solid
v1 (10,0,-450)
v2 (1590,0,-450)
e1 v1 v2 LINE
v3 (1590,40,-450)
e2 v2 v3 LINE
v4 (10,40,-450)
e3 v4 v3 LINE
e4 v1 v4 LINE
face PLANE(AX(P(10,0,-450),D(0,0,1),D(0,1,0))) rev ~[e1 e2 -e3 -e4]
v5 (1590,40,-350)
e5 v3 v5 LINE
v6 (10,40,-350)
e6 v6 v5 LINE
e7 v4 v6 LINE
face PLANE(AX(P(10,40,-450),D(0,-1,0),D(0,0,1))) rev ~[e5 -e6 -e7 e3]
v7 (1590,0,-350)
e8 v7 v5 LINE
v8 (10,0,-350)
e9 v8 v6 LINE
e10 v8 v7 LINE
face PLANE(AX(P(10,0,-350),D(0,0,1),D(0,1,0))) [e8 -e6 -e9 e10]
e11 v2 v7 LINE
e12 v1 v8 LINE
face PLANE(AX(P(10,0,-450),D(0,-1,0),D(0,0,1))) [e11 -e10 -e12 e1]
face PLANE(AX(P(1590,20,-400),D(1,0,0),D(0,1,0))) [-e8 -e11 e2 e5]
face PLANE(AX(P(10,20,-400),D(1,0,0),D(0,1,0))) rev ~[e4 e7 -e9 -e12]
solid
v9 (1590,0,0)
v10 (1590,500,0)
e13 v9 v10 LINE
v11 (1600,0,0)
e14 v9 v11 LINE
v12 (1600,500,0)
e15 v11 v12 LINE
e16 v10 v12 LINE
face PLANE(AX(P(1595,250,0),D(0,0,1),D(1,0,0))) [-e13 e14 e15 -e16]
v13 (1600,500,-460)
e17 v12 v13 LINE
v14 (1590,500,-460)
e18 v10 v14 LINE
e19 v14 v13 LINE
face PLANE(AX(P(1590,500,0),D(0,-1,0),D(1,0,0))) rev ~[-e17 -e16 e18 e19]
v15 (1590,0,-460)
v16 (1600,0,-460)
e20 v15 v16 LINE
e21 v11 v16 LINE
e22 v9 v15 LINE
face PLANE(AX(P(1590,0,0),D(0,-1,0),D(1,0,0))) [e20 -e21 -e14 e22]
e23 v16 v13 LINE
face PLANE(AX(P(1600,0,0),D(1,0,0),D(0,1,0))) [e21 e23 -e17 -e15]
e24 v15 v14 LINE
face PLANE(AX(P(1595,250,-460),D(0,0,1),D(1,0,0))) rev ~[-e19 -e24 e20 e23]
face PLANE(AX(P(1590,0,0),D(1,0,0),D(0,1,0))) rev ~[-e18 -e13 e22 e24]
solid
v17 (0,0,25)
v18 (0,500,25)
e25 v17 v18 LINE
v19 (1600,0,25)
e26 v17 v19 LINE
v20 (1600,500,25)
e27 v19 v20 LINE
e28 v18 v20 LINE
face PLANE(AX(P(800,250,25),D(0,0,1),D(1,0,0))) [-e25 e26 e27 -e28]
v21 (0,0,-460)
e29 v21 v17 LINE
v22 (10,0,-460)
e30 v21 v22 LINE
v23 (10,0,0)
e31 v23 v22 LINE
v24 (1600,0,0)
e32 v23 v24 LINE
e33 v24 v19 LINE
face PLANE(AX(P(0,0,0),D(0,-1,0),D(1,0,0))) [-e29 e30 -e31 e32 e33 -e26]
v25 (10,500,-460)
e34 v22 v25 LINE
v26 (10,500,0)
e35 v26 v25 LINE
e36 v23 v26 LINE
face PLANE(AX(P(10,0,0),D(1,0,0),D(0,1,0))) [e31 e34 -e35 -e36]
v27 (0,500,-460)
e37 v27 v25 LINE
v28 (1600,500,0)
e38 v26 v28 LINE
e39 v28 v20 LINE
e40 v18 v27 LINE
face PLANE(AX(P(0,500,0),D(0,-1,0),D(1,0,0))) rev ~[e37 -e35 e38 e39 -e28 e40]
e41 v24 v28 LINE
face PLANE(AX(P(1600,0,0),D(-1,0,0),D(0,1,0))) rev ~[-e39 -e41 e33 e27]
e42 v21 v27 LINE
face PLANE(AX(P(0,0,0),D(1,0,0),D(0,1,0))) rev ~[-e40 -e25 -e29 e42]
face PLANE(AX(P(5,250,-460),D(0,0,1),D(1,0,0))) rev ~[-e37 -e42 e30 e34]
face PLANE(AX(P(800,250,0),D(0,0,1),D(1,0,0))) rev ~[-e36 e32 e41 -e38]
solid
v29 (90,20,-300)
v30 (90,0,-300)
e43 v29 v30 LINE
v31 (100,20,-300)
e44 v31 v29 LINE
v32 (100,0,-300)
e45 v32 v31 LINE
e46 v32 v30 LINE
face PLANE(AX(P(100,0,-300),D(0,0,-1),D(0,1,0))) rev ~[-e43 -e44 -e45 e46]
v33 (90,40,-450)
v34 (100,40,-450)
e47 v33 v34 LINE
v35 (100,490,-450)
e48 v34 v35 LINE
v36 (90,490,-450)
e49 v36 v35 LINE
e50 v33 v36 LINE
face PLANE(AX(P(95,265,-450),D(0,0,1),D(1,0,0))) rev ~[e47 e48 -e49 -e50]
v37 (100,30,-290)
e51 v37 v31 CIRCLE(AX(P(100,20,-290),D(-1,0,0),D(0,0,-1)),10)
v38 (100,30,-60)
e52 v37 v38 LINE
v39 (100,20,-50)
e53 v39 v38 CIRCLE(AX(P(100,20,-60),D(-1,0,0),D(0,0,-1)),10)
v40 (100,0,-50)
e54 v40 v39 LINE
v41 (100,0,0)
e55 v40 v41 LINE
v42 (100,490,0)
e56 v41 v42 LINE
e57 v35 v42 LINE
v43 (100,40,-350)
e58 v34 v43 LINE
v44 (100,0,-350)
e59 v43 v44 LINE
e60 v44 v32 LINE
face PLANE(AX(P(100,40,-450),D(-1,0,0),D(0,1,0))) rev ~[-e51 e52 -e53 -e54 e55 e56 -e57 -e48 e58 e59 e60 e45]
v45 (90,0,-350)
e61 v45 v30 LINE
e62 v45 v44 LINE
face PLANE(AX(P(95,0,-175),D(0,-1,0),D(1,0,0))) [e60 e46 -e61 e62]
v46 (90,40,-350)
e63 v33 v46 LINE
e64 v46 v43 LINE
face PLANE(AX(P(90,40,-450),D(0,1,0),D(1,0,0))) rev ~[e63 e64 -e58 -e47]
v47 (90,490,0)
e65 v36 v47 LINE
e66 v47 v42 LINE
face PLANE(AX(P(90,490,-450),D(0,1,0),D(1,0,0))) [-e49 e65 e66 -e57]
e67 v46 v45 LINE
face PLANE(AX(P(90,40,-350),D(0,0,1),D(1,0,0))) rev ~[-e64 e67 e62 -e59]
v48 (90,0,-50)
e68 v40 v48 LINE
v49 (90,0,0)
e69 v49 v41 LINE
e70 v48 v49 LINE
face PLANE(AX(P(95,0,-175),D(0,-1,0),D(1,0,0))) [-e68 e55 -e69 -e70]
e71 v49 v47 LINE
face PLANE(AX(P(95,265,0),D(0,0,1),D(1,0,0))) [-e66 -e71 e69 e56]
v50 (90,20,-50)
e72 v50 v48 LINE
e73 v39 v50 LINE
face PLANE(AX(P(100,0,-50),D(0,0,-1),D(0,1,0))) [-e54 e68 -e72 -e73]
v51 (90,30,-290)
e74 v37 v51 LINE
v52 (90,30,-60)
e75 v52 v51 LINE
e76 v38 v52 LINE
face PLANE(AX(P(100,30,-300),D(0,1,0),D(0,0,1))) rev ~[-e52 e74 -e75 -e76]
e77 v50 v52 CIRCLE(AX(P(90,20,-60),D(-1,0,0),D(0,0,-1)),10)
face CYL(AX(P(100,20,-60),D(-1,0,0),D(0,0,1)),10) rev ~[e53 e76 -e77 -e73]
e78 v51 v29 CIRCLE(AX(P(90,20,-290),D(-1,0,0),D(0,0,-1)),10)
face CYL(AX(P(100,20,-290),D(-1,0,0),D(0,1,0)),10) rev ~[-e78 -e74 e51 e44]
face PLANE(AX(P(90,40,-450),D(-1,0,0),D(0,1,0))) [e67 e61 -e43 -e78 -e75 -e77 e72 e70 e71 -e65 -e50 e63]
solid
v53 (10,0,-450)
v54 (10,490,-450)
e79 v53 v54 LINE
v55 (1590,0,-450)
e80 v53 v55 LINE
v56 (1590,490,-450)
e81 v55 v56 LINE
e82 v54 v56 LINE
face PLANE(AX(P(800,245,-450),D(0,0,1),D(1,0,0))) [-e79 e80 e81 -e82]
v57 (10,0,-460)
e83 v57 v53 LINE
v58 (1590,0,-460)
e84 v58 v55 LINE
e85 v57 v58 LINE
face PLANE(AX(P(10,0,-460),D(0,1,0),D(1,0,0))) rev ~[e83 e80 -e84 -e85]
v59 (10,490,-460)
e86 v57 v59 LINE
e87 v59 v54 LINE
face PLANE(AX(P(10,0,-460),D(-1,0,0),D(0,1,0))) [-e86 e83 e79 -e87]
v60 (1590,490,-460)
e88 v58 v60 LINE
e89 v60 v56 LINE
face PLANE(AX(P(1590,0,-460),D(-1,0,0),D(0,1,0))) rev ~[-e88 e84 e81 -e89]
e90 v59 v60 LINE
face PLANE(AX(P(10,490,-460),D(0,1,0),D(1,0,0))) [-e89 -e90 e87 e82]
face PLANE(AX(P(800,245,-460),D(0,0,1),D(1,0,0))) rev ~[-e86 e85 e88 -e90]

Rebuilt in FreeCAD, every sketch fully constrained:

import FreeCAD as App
import Part
import Sketcher
from FreeCAD import Vector
Q = App.Units.Quantity


def edges_at(feature, points):
    """Names of the edges that pass closest to the given points."""
    edges = feature.Shape.Edges
    near = lambda p: min(range(len(edges)), key=lambda i: edges[i].distToShape(Part.Vertex(*p))[0])
    return sorted({f"Edge{near(p) + 1}" for p in points})


def add_polygon(sketch, points):
    """Adds a closed chain of lines whose ends are joined by coincident constraints."""
    first, n = sketch.GeometryCount, len(points)
    for a, b in zip(points, points[1:] + points[:1]):
        sketch.addGeometry(Part.LineSegment(App.Vector(*a, 0), App.Vector(*b, 0)), False)
    for i in range(n):
        sketch.addConstraint(Sketcher.Constraint("Coincident", first + i, 2, first + (i + 1) % n, 1))

doc = App.newDocument("Part")
body = doc.addObject("PartDesign::Body", "Body")

sketch1 = body.newObject("Sketcher::SketchObject", "Sketch")
sketch1.AttachmentSupport = (doc.getObject("XY_Plane"), [""])
sketch1.MapMode = "FlatFace"
add_polygon(sketch1, [(0, 500), (0, 0), (1600, 0), (1600, 500)])
sketch1.addConstraint([
    Sketcher.Constraint("Vertical", 0),
    Sketcher.Constraint("Horizontal", 1),
    Sketcher.Constraint("Vertical", 2),
    Sketcher.Constraint("Horizontal", 3),
    Sketcher.Constraint("Coincident", 0, 2, -1, 1),
    Sketcher.Constraint("DistanceX", 1, 1, 1, 2, Q("1600 mm")),
    Sketcher.Constraint("DistanceY", 0, 2, 0, 1, Q("500 mm")),
])
pad1 = body.newObject("PartDesign::Pad", "Pad")
pad1.Profile = sketch1
pad1.Length = 25

sketch2 = body.newObject("Sketcher::SketchObject", "Sketch001")
sketch2.AttachmentSupport = (doc.getObject("XY_Plane"), [""])
sketch2.MapMode = "FlatFace"
add_polygon(sketch2, [(0, 500), (0, 0), (10, 0), (10, 500)])
sketch2.addConstraint([
    Sketcher.Constraint("Vertical", 0),
    Sketcher.Constraint("Horizontal", 1),
    Sketcher.Constraint("Vertical", 2),
    Sketcher.Constraint("Horizontal", 3),
    Sketcher.Constraint("Coincident", 0, 2, -1, 1),
    Sketcher.Constraint("DistanceX", 1, 1, 1, 2, Q("10 mm")),
    Sketcher.Constraint("DistanceY", 0, 2, 0, 1, Q("500 mm")),
])
pad2 = body.newObject("PartDesign::Pad", "Pad001")
pad2.Profile = sketch2
pad2.Length = 460
pad2.Reversed = True
body2 = doc.addObject("PartDesign::Body", "Body001")

sketch3 = body2.newObject("Sketcher::SketchObject", "Sketch002")
sketch3.AttachmentSupport = (doc.getObject("XY_Plane001"), [""])
sketch3.MapMode = "FlatFace"
sketch3.AttachmentOffset = App.Placement(Vector(0, 0, -460), App.Rotation())
add_polygon(sketch3, [(10, 490), (10, 0), (1590, 0), (1590, 490)])
sketch3.addConstraint([
    Sketcher.Constraint("Vertical", 0),
    Sketcher.Constraint("Horizontal", 1),
    Sketcher.Constraint("Vertical", 2),
    Sketcher.Constraint("Horizontal", 3),
    Sketcher.Constraint("PointOnObject", 0, 2, -1),
    Sketcher.Constraint("DistanceX", 1, 1, 1, 2, Q("1580 mm")),
    Sketcher.Constraint("DistanceY", 0, 2, 0, 1, Q("490 mm")),
    Sketcher.Constraint("DistanceX", -1, 1, 0, 2, Q("10 mm")),
])
pad3 = body2.newObject("PartDesign::Pad", "Pad002")
pad3.Profile = sketch3
pad3.Length = 10
body3 = doc.addObject("PartDesign::Body", "Body002")

sketch4 = body3.newObject("Sketcher::SketchObject", "Sketch003")
sketch4.AttachmentSupport = (doc.getObject("XY_Plane002"), [""])
sketch4.MapMode = "FlatFace"
add_polygon(sketch4, [(1590, 500), (1590, 0), (1600, 0), (1600, 500)])
sketch4.addConstraint([
    Sketcher.Constraint("Vertical", 0),
    Sketcher.Constraint("Horizontal", 1),
    Sketcher.Constraint("Vertical", 2),
    Sketcher.Constraint("Horizontal", 3),
    Sketcher.Constraint("PointOnObject", 0, 2, -1),
    Sketcher.Constraint("DistanceX", 1, 1, 1, 2, Q("10 mm")),
    Sketcher.Constraint("DistanceY", 0, 2, 0, 1, Q("500 mm")),
    Sketcher.Constraint("DistanceX", -1, 1, 0, 2, Q("1590 mm")),
])
pad4 = body3.newObject("PartDesign::Pad", "Pad003")
pad4.Profile = sketch4
pad4.Length = 460
pad4.Reversed = True
body4 = doc.addObject("PartDesign::Body", "Body003")

sketch5 = body4.newObject("Sketcher::SketchObject", "Sketch004")
sketch5.AttachmentSupport = (doc.getObject("YZ_Plane003"), [""])
sketch5.MapMode = "FlatFace"
sketch5.AttachmentOffset = App.Placement(Vector(0, 0, 10), App.Rotation())
add_polygon(sketch5, [(0, -350), (0, -450), (40, -450), (40, -350)])
sketch5.addConstraint([
    Sketcher.Constraint("Vertical", 0),
    Sketcher.Constraint("Horizontal", 1),
    Sketcher.Constraint("Vertical", 2),
    Sketcher.Constraint("Horizontal", 3),
    Sketcher.Constraint("PointOnObject", 0, 2, -2),
    Sketcher.Constraint("DistanceX", 1, 1, 1, 2, Q("40 mm")),
    Sketcher.Constraint("DistanceY", 0, 2, 0, 1, Q("100 mm")),
    Sketcher.Constraint("DistanceY", 0, 2, -1, 1, Q("450 mm")),
])
pad5 = body4.newObject("PartDesign::Pad", "Pad004")
pad5.Profile = sketch5
pad5.Length = 1580
body5 = doc.addObject("PartDesign::Body", "Body004")

sketch6 = body5.newObject("Sketcher::SketchObject", "Sketch005")
sketch6.AttachmentSupport = (doc.getObject("XY_Plane004"), [""])
sketch6.MapMode = "FlatFace"
sketch6.AttachmentOffset = App.Placement(Vector(0, 0, -450), App.Rotation())
add_polygon(sketch6, [(90, 490), (90, 40), (100, 40), (100, 490)])
sketch6.addConstraint([
    Sketcher.Constraint("Vertical", 0),
    Sketcher.Constraint("Horizontal", 1),
    Sketcher.Constraint("Vertical", 2),
    Sketcher.Constraint("Horizontal", 3),
    Sketcher.Constraint("DistanceX", 1, 1, 1, 2, Q("10 mm")),
    Sketcher.Constraint("DistanceY", 0, 2, 0, 1, Q("450 mm")),
    Sketcher.Constraint("DistanceX", -1, 1, 0, 2, Q("90 mm")),
    Sketcher.Constraint("DistanceY", -1, 1, 0, 2, Q("40 mm")),
])
pad6 = body5.newObject("PartDesign::Pad", "Pad005")
pad6.Profile = sketch6
pad6.Length = 450
body6 = doc.addObject("PartDesign::Body", "Body005")

sketch7 = body6.newObject("Sketcher::SketchObject", "Sketch006")
sketch7.AttachmentSupport = (doc.getObject("XZ_Plane005"), [""])
sketch7.MapMode = "FlatFace"
sketch7.AttachmentOffset = App.Placement(Vector(0, 0, -40), App.Rotation())
add_polygon(sketch7, [(90, 0), (90, -350), (100, -350), (100, 0)])
sketch7.addConstraint([
    Sketcher.Constraint("Vertical", 0),
    Sketcher.Constraint("Horizontal", 1),
    Sketcher.Constraint("Vertical", 2),
    Sketcher.Constraint("Horizontal", 3),
    Sketcher.Constraint("PointOnObject", 2, 2, -1),
    Sketcher.Constraint("DistanceX", 1, 1, 1, 2, Q("10 mm")),
    Sketcher.Constraint("DistanceY", 0, 2, 0, 1, Q("350 mm")),
    Sketcher.Constraint("DistanceX", -1, 1, 0, 2, Q("90 mm")),
])
pad7 = body6.newObject("PartDesign::Pad", "Pad006")
pad7.Profile = sketch7
pad7.Length = 40
doc.recompute()

boolean = body6.newObject("PartDesign::Boolean", "Boolean")
boolean.Type = "Fuse"
boolean.addObjects([body5])

sketch8 = body6.newObject("Sketcher::SketchObject", "Sketch007")
sketch8.AttachmentSupport = (doc.getObject("YZ_Plane005"), [""])
sketch8.MapMode = "FlatFace"
sketch8.AttachmentOffset = App.Placement(Vector(0, 0, 100), App.Rotation())
add_polygon(sketch8, [(0, -50), (0, -300), (30, -300), (30, -50)])
sketch8.addConstraint([
    Sketcher.Constraint("Vertical", 0),
    Sketcher.Constraint("Horizontal", 1),
    Sketcher.Constraint("Vertical", 2),
    Sketcher.Constraint("Horizontal", 3),
    Sketcher.Constraint("PointOnObject", 0, 2, -2),
    Sketcher.Constraint("DistanceX", 1, 1, 1, 2, Q("30 mm")),
    Sketcher.Constraint("DistanceY", 0, 2, 0, 1, Q("250 mm")),
    Sketcher.Constraint("DistanceY", 0, 2, -1, 1, Q("300 mm")),
])
pocket1 = body6.newObject("PartDesign::Pocket", "Pocket")
pocket1.Profile = sketch8
pocket1.Type = "ThroughAll"
doc.recompute()

fillet = body6.newObject("PartDesign::Fillet", "Fillet")
fillet.Base = (pocket1, edges_at(pocket1, [(95, 30, -50), (95, 30, -300)]))
fillet.Radius = 10

doc.recompute()
